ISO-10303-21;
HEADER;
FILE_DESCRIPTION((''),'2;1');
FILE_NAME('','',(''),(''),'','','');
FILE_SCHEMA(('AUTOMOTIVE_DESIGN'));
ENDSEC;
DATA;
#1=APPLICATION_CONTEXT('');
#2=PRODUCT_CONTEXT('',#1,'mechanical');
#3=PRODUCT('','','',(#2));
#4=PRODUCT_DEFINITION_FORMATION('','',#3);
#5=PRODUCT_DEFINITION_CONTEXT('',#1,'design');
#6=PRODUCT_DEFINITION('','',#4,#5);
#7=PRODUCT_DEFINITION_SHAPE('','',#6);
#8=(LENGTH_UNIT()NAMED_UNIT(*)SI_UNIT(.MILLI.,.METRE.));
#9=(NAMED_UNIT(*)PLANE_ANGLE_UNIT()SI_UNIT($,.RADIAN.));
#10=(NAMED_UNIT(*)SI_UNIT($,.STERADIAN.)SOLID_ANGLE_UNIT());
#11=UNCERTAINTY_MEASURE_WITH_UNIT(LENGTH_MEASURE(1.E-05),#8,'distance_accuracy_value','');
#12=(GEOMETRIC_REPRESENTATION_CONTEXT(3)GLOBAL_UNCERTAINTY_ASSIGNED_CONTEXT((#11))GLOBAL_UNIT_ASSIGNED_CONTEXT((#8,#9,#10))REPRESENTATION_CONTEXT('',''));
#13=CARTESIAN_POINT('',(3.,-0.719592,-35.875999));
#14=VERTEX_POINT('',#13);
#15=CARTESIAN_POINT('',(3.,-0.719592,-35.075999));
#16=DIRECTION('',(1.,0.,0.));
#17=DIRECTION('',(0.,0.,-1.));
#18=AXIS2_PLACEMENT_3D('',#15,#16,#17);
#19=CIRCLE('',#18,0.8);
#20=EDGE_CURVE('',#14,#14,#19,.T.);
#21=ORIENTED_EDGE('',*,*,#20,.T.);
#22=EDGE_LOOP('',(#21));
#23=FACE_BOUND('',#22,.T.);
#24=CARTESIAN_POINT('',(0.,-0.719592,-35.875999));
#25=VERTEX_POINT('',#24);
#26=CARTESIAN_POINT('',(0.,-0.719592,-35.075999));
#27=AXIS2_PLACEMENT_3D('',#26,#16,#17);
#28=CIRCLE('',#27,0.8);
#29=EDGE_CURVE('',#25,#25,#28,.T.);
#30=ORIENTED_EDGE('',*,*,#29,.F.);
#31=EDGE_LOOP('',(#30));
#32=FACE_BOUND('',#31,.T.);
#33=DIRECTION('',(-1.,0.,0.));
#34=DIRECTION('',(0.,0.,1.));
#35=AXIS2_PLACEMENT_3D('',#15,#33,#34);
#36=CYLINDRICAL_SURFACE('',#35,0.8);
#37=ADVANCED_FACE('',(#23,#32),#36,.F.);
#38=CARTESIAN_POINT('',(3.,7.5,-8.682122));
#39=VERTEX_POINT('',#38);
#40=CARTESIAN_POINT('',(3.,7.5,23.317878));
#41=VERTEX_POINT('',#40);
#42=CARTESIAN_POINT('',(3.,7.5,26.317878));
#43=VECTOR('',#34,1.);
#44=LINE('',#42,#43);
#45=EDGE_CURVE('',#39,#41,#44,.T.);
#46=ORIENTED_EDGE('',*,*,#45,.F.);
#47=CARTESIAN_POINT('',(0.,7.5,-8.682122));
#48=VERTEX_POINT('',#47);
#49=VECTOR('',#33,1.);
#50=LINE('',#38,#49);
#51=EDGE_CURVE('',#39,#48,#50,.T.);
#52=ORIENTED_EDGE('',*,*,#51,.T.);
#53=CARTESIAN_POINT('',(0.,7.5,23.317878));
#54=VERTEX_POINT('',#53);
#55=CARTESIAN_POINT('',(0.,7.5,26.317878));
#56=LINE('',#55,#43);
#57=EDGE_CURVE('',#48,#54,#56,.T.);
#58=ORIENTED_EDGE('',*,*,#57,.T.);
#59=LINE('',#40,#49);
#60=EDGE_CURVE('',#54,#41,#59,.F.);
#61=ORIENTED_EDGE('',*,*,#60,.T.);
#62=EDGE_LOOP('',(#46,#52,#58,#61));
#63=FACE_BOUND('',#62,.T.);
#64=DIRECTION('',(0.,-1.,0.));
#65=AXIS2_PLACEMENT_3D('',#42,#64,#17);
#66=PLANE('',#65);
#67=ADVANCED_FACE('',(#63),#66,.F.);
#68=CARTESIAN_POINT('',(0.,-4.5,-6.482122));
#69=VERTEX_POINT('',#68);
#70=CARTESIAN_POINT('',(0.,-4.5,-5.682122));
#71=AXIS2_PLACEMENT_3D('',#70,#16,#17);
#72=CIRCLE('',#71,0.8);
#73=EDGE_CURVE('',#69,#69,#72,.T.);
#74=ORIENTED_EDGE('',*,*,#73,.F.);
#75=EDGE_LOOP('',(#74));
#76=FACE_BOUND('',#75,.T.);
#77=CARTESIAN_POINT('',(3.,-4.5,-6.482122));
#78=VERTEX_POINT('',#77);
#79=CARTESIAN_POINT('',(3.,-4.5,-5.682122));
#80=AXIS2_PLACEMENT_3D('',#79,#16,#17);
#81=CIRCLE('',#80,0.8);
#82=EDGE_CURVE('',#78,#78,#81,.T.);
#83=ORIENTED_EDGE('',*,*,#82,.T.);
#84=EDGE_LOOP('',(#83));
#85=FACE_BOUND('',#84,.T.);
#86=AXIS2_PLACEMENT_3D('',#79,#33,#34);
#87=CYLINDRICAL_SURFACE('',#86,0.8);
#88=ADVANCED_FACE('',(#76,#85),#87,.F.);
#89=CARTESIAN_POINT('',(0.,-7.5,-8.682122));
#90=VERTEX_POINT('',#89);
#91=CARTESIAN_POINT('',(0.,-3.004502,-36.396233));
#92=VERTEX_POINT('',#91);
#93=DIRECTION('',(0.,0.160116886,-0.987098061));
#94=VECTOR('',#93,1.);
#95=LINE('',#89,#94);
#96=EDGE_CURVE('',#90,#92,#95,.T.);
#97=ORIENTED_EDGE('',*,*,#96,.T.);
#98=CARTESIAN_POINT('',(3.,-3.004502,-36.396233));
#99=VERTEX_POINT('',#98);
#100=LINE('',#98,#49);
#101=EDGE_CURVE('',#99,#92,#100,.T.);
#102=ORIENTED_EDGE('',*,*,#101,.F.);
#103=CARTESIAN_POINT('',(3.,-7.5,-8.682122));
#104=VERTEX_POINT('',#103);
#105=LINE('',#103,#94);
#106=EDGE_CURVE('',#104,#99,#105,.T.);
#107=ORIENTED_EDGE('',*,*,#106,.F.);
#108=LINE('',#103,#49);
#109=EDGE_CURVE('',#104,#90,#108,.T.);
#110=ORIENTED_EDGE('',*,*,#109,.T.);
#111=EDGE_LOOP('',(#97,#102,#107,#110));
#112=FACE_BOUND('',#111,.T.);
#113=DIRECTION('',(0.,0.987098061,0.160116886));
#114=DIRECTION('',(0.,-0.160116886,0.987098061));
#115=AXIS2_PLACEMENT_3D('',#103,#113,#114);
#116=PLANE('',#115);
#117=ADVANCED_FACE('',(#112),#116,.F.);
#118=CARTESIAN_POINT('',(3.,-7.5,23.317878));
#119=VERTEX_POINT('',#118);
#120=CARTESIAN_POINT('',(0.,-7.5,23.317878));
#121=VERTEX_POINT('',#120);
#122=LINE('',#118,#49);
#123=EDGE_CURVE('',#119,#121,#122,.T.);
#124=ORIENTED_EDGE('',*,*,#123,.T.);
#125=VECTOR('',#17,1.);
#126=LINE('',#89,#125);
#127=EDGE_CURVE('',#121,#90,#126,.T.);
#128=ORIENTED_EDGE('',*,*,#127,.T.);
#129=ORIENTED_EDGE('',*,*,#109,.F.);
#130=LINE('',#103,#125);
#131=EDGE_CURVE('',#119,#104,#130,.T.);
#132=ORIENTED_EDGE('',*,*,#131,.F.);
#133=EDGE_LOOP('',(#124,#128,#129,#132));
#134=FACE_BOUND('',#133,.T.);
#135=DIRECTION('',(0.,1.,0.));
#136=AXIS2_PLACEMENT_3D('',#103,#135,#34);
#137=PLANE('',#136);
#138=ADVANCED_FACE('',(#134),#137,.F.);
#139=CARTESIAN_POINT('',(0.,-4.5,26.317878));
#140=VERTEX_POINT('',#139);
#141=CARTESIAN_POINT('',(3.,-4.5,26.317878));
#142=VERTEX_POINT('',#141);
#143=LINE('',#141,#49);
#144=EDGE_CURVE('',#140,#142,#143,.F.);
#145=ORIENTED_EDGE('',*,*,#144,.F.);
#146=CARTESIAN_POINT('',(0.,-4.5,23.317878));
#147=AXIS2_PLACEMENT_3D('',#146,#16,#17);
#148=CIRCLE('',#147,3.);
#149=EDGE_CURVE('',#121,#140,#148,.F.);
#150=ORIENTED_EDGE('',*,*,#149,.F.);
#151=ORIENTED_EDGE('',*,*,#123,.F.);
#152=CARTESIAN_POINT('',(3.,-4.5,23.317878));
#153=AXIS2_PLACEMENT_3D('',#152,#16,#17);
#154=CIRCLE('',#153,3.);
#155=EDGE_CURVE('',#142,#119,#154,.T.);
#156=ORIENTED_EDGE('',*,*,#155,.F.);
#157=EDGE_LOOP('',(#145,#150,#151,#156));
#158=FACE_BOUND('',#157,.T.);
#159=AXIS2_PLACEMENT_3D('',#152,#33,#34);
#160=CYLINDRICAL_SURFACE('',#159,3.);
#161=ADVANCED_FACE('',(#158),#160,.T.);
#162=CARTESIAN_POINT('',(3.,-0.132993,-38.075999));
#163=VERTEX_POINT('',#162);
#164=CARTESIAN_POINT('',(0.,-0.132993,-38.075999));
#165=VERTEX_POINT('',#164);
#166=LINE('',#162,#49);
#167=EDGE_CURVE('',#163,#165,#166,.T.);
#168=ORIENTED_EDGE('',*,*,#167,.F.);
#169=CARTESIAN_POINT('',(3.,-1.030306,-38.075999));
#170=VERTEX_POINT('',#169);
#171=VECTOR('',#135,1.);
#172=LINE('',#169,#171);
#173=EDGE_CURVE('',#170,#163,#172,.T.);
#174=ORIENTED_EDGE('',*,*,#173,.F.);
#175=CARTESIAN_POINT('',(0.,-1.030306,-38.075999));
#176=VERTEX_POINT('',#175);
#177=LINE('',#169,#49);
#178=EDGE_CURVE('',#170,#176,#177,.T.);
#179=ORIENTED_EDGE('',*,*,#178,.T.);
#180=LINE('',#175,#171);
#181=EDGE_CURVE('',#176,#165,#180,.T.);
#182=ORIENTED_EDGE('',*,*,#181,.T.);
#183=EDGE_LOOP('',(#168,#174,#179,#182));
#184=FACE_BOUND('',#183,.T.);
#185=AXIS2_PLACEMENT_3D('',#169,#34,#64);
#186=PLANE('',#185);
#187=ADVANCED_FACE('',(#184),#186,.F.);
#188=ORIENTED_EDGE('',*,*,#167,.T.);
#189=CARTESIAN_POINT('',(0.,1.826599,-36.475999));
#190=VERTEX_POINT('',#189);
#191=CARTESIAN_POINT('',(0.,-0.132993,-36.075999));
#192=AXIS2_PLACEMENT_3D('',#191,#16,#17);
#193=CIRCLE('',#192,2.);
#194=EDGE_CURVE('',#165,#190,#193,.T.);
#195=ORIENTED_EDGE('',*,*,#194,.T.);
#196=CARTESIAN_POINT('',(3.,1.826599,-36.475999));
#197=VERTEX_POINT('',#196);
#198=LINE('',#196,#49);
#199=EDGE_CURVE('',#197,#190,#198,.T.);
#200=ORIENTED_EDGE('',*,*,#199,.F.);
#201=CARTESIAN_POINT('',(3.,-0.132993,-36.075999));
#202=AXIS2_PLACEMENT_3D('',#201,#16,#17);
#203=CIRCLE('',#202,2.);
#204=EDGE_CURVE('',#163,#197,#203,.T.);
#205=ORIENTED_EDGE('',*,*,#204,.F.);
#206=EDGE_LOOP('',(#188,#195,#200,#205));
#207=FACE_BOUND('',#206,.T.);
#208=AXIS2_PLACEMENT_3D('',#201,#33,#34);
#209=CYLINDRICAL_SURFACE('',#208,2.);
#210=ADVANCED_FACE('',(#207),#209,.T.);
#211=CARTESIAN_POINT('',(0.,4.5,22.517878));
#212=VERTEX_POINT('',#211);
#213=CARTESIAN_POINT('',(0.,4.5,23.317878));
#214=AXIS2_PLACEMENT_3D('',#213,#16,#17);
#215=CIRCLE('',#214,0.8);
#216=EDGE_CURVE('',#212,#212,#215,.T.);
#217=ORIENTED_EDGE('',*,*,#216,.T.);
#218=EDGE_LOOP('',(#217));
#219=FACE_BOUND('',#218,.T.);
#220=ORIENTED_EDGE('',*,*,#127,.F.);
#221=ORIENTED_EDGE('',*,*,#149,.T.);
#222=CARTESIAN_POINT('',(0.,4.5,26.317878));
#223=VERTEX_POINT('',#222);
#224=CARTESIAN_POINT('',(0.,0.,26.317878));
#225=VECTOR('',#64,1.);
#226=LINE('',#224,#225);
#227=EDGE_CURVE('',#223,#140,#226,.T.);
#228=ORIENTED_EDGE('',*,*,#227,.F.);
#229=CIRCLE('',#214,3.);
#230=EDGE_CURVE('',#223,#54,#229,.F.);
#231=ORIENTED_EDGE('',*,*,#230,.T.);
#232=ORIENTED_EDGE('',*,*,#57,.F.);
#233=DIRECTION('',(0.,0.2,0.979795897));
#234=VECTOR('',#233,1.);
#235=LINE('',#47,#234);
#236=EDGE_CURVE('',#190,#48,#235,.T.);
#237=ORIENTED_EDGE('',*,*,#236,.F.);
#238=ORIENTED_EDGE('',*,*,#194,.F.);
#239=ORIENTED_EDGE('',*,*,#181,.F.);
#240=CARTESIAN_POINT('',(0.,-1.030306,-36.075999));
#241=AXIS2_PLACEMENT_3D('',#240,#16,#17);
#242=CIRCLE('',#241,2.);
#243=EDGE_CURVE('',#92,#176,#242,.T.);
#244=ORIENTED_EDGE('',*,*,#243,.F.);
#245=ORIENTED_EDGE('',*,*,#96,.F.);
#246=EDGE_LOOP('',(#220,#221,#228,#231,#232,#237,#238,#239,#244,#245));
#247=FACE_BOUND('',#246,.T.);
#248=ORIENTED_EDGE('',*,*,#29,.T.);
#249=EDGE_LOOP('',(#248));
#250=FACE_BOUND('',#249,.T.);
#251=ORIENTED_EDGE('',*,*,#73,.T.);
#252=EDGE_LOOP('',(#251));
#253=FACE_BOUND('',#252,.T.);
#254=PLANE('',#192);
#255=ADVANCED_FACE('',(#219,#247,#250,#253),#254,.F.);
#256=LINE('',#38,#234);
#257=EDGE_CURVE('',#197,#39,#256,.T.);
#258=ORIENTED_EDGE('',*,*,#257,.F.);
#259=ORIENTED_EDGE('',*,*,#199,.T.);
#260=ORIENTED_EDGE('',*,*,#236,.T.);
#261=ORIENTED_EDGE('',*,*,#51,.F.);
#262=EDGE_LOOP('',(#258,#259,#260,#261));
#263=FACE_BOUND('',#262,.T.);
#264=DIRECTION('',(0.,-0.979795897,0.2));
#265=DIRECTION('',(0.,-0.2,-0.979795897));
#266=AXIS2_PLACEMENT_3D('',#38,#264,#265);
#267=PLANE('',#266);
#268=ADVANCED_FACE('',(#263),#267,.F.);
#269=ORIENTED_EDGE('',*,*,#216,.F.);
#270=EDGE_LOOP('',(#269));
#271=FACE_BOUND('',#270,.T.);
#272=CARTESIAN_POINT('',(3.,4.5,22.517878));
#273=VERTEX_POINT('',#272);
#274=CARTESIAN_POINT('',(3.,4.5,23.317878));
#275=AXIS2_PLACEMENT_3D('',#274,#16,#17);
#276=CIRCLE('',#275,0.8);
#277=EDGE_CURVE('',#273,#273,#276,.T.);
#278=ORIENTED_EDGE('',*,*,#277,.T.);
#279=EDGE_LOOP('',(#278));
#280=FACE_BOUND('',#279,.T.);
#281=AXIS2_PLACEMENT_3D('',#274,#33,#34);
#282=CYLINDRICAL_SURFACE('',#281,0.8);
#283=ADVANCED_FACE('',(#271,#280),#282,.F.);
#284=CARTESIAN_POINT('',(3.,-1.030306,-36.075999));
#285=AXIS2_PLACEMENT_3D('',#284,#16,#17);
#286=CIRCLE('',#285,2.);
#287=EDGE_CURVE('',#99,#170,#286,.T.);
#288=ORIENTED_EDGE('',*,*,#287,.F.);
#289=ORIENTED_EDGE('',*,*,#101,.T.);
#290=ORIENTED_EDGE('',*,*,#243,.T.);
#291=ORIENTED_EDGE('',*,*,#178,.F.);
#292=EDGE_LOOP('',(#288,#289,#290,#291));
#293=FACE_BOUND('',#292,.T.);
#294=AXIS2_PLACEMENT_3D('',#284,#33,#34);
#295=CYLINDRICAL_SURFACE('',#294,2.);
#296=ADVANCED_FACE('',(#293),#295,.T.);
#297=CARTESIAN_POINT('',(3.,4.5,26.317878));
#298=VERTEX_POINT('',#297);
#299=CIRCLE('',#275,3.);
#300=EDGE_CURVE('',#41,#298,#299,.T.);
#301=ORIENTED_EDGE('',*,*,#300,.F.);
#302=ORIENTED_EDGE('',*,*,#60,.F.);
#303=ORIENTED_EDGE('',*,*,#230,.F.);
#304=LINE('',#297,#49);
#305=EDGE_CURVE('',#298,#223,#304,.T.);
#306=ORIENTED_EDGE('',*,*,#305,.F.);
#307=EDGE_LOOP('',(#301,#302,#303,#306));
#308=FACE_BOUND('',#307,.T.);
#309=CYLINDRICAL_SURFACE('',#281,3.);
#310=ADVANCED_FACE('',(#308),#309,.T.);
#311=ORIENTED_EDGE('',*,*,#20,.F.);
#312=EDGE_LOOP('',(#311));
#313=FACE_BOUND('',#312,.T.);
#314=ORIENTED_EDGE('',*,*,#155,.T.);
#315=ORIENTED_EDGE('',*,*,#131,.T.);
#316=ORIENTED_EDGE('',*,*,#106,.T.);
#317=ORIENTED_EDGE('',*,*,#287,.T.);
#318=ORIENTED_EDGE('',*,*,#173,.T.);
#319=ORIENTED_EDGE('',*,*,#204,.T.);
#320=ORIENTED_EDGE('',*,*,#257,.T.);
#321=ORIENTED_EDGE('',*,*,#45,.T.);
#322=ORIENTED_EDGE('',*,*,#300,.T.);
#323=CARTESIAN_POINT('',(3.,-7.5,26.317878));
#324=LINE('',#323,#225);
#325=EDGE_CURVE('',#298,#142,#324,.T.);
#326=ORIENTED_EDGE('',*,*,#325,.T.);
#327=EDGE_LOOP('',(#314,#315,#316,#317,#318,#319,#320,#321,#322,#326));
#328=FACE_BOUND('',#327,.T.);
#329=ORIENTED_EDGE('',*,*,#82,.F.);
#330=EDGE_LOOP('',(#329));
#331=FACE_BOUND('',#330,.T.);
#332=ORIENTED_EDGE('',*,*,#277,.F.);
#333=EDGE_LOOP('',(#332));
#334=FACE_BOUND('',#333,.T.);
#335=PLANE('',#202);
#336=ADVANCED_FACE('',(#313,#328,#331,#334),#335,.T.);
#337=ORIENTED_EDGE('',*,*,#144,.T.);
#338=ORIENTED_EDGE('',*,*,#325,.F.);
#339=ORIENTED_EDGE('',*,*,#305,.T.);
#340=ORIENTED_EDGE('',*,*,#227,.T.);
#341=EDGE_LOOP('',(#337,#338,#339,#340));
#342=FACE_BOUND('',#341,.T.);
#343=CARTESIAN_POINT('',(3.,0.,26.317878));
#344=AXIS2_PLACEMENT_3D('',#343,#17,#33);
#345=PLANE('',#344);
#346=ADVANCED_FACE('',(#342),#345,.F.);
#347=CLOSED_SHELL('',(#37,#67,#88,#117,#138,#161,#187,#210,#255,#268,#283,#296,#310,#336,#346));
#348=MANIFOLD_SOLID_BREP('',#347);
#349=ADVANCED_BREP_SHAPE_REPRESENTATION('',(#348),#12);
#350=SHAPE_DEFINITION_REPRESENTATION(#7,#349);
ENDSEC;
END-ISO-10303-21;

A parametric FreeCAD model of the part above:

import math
import FreeCAD as App
import Part
import Sketcher

V = App.Vector


def edges_at(feature, points):
    """Names of the edges that pass closest to the given points."""
    edges = feature.Shape.Edges
    near = lambda p: min(range(len(edges)), key=lambda i: edges[i].distToShape(Part.Vertex(*p))[0])
    return sorted({f"Edge{near(p) + 1}" for p in points})

doc = App.newDocument("Part")
body = doc.addObject("PartDesign::Body", "Body")

sketch1 = body.newObject("Sketcher::SketchObject", "Sketch")
sketch1.AttachmentSupport = (doc.getObject("YZ_Plane"), [""])
sketch1.MapMode = "FlatFace"
sketch1.addGeometry(Part.LineSegment(V(7.5, -8.682122, 0), V(7.5, 26.317878, 0)), False)
sketch1.addGeometry(Part.LineSegment(V(7.5, 26.317878, 0), V(-7.5, 26.317878, 0)), False)
sketch1.addGeometry(Part.LineSegment(V(-7.5, 26.317878, 0), V(-7.5, -8.682122, 0)), False)
sketch1.addGeometry(Part.LineSegment(V(-7.5, -8.682122, 0), V(-3.004502, -36.396233, 0)), False)
sketch1.addGeometry(Part.ArcOfCircle(Part.Circle(V(-1.030306, -36.075999, 0), V(0, 0, 1), 2), math.radians(-170.786319), math.radians(-90)), False)
sketch1.addGeometry(Part.LineSegment(V(-1.030306, -38.075999, 0), V(-0.132993, -38.075999, 0)), False)
sketch1.addGeometry(Part.ArcOfCircle(Part.Circle(V(-0.132993, -36.075999, 0), V(0, 0, 1), 2), math.radians(-90), math.radians(-11.536959)), False)
sketch1.addGeometry(Part.LineSegment(V(1.826599, -36.475999, 0), V(7.5, -8.682122, 0)), False)
sketch1.addGeometry(Part.Circle(V(-0.719592, -35.075999, 0), V(0, 0, 1), 0.8), False)
sketch1.addGeometry(Part.Circle(V(-4.5, -5.682122, 0), V(0, 0, 1), 0.8), False)
sketch1.addGeometry(Part.Circle(V(4.5, 23.317878, 0), V(0, 0, 1), 0.8), False)
sketch1.addConstraint(Sketcher.Constraint("Coincident", 0, 2, 1, 1))
sketch1.addConstraint(Sketcher.Constraint("Coincident", 1, 2, 2, 1))
sketch1.addConstraint(Sketcher.Constraint("Coincident", 2, 2, 3, 1))
sketch1.addConstraint(Sketcher.Constraint("Tangent", 3, 2, 4, 1))
sketch1.addConstraint(Sketcher.Constraint("Tangent", 4, 2, 5, 1))
sketch1.addConstraint(Sketcher.Constraint("Tangent", 5, 2, 6, 1))
sketch1.addConstraint(Sketcher.Constraint("Tangent", 6, 2, 7, 1))
sketch1.addConstraint(Sketcher.Constraint("Coincident", 7, 2, 0, 1))
sketch1.addConstraint(Sketcher.Constraint("Vertical", 0))
sketch1.addConstraint(Sketcher.Constraint("Horizontal", 1))
sketch1.addConstraint(Sketcher.Constraint("Vertical", 2))
sketch1.addConstraint(Sketcher.Constraint("Horizontal", 5))
sketch1.addConstraint(Sketcher.Constraint("Equal", 4, 6))
sketch1.addConstraint(Sketcher.Constraint("Equal", 8, 9))
sketch1.addConstraint(Sketcher.Constraint("Equal", 9, 10))
sketch1.addConstraint(Sketcher.Constraint("Symmetric", 2, 2, 7, 2, -2))
sketch1.addConstraint(Sketcher.Constraint("Radius", 4, 2.0))
sketch1.addConstraint(Sketcher.Constraint("Diameter", 8, 1.6))
sketch1.addConstraint(Sketcher.Constraint("DistanceX", 1, 2, 1, 1, 15.0))
sketch1.addConstraint(Sketcher.Constraint("DistanceY", 0, 1, 0, 2, 35.0))
sketch1.addConstraint(Sketcher.Constraint("DistanceY", 4, 3, 8, 3, 1.0))
sketch1.addConstraint(Sketcher.Constraint("DistanceX", 9, 3, 10, 3, 9.0))
sketch1.addConstraint(Sketcher.Constraint("DistanceY", 9, 3, 10, 3, 29.0))
sketch1.addConstraint(Sketcher.Constraint("DistanceX", 10, 3, 0, 2, 3.0))
sketch1.addConstraint(Sketcher.Constraint("DistanceY", 10, 3, 0, 2, 3.0))
sketch1.addConstraint(Sketcher.Constraint("DistanceY", 6, 2, 6, 3, 0.4))
sketch1.addConstraint(Sketcher.Constraint("DistanceY", 4, 3, -1, 1, 36.075999))
sketch1.addConstraint(Sketcher.Constraint("DistanceX", -1, 1, 6, 2, 1.826599))
sketch1.addConstraint(Sketcher.Constraint("DistanceX", 8, 3, 6, 3, 0.586599))
sketch1.addConstraint(Sketcher.Constraint("Distance", 3, 28.07635))
pad1 = body.newObject("PartDesign::Pad", "Pad")
pad1.Profile = sketch1
pad1.Length = 3
doc.recompute()

fillet = body.newObject("PartDesign::Fillet", "Fillet")
fillet.Base = (pad1, edges_at(pad1, [(1.5, -7.5, 26.318)]))
fillet.Radius = 3
doc.recompute()

fillet2 = body.newObject("PartDesign::Fillet", "Fillet001")
fillet2.Base = (fillet, edges_at(fillet, [(1.5, 7.5, 26.318)]))
fillet2.Radius = 3

doc.recompute()
